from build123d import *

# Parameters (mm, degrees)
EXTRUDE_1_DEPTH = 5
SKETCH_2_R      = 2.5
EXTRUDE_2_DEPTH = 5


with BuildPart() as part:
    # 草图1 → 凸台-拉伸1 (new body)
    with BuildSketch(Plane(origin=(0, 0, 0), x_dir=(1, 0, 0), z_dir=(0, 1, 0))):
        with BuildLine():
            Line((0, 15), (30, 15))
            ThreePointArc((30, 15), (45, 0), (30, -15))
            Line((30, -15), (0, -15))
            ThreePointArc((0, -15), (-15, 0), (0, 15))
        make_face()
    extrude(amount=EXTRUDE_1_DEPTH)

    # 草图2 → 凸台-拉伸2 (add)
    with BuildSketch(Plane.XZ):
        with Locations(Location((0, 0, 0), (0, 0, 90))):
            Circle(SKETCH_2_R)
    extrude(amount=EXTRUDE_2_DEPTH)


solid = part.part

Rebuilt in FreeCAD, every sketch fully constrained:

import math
import FreeCAD as App
import Part
import Sketcher
from FreeCAD import Vector
Q = App.Units.Quantity

doc = App.newDocument("Part")
params = doc.addObject("Spreadsheet::Sheet", "Params")
for row, (alias, value) in enumerate([
    ("sketch1_radius", "15 mm"),
    ("sketch1_width", "30 mm"),
    ("pad1_length", "5 mm"),
    ("sketch2_diameter", "5 mm"),
    ("pad2_length", "5 mm"),
], start=1):
    params.set(f"A{row}", alias)
    params.set(f"B{row}", "=" + value)
    params.setAlias(f"B{row}", alias)

body = doc.addObject("PartDesign::Body", "Body")

# Sketch on XZ plane
sketch1 = body.newObject("Sketcher::SketchObject", "Sketch")
sketch1.AttachmentSupport = (doc.getObject("XZ_Plane"), [""])
sketch1.MapMode = "FlatFace"
sketch1.addGeometry(Part.LineSegment(Vector(30, -15, 0), Vector(0, -15, 0)), False)
sketch1.addGeometry(Part.ArcOfCircle(Part.Circle(Vector(0, 0, 0), Vector(0, 0, 1), 15), math.radians(90), math.radians(270)), False)
sketch1.addGeometry(Part.LineSegment(Vector(0, 15, 0), Vector(30, 15, 0)), False)
sketch1.addGeometry(Part.ArcOfCircle(Part.Circle(Vector(30, 0, 0), Vector(0, 0, 1), 15), math.radians(-90), math.radians(90)), False)
sketch1.addConstraint(Sketcher.Constraint("Tangent", 0, 2, 1, 2))
sketch1.addConstraint(Sketcher.Constraint("Tangent", 1, 1, 2, 1))
sketch1.addConstraint(Sketcher.Constraint("Tangent", 2, 2, 3, 2))
sketch1.addConstraint(Sketcher.Constraint("Tangent", 3, 1, 0, 1))
sketch1.addConstraint(Sketcher.Constraint("Horizontal", 0))
sketch1.addConstraint(Sketcher.Constraint("Horizontal", 2))
sketch1.addConstraint(Sketcher.Constraint("Coincident", 1, 3, -1, 1))
sketch1.addConstraint(Sketcher.Constraint("Radius", 1, Q("15 mm")))
sketch1.addConstraint(Sketcher.Constraint("DistanceX", 0, 2, 0, 1, Q("30 mm")))
sketch1.setExpression("Constraints[7]", "Params.sketch1_radius")
sketch1.setExpression("Constraints[8]", "Params.sketch1_width")
pad1 = body.newObject("PartDesign::Pad", "Pad")
pad1.Profile = sketch1
pad1.setExpression("Length", "Params.pad1_length")
pad1.Reversed = True

# Sketch on XZ plane
sketch2 = body.newObject("Sketcher::SketchObject", "Sketch001")
sketch2.AttachmentSupport = (doc.getObject("XZ_Plane"), [""])
sketch2.MapMode = "FlatFace"
sketch2.addGeometry(Part.Circle(Vector(0, 0, 0), Vector(0, 0, 1), 2.5), False)
sketch2.addConstraint(Sketcher.Constraint("Coincident", 0, 3, -1, 1))
sketch2.addConstraint(Sketcher.Constraint("Diameter", 0, Q("5 mm")))
sketch2.setExpression("Constraints[1]", "Params.sketch2_diameter")
pad2 = body.newObject("PartDesign::Pad", "Pad001")
pad2.Profile = sketch2
pad2.setExpression("Length", "Params.pad2_length")

doc.recompute()
